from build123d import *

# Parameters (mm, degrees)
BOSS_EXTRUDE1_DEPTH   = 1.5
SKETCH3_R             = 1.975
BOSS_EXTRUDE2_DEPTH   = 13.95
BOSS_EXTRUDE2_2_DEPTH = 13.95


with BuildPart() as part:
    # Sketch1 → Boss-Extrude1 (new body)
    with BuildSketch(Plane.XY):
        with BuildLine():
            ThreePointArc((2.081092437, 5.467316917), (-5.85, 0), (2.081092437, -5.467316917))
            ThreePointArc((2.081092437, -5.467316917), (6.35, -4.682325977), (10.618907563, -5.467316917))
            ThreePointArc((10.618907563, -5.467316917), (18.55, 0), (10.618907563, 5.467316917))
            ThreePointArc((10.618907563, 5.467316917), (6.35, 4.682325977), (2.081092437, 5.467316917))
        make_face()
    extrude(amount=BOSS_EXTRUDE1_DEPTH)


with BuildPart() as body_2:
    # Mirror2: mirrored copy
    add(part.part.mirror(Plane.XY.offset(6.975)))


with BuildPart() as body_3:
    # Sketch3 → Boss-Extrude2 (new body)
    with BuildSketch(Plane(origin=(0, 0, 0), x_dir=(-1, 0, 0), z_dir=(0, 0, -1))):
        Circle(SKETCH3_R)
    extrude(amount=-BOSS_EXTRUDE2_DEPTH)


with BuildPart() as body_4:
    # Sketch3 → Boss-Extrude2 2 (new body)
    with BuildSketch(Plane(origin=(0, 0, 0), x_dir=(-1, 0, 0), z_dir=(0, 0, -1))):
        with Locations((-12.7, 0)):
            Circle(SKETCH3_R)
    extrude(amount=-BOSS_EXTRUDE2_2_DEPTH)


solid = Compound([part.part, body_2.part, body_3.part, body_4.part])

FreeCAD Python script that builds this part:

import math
import FreeCAD as App
import Part
import Sketcher

V = App.Vector

doc = App.newDocument("Part")
params = doc.addObject("Spreadsheet::Sheet", "Params")
for row, (alias, value) in enumerate([
    ("sketch1_radius", "12 mm"),
    ("sketch1_radius2", "5.85 mm"),
    ("pad1_length", "1.5 mm"),
    ("sketch2_diameter", "3.95 mm"),
    ("pad2_length", "13.95 mm"),
    ("sketch3_diameter", "3.95 mm"),
    ("pad3_length", "13.95 mm"),
], start=1):
    params.set(f"A{row}", alias)
    params.set(f"B{row}", "=" + value)
    params.setAlias(f"B{row}", alias)

body = doc.addObject("PartDesign::Body", "Body")

sketch1 = body.newObject("Sketcher::SketchObject", "Sketch")
sketch1.AttachmentSupport = (doc.getObject("XY_Plane"), [""])
sketch1.MapMode = "FlatFace"
sketch1.addGeometry(Part.ArcOfCircle(Part.Circle(V(0, 0, 0), V(0, 0, 1), 5.85), math.radians(69.161055), math.radians(290.838945)), False)
sketch1.addGeometry(Part.ArcOfCircle(Part.Circle(V(6.35, -16.682326, 0), V(0, 0, 1), 12), math.radians(69.161055), math.radians(110.838945)), False)
sketch1.addGeometry(Part.ArcOfCircle(Part.Circle(V(12.7, 0, 0), V(0, 0, 1), 5.85), math.radians(-110.838945), math.radians(110.838945)), False)
sketch1.addGeometry(Part.ArcOfCircle(Part.Circle(V(6.35, 16.682326, 0), V(0, 0, 1), 12), math.radians(-110.838945), math.radians(-69.161055)), False)
sketch1.addConstraint(Sketcher.Constraint("Tangent", 0, 2, 1, 2))
sketch1.addConstraint(Sketcher.Constraint("Tangent", 1, 1, 2, 1))
sketch1.addConstraint(Sketcher.Constraint("Tangent", 2, 2, 3, 2))
sketch1.addConstraint(Sketcher.Constraint("Tangent", 3, 1, 0, 1))
sketch1.addConstraint(Sketcher.Constraint("Coincident", 0, 3, -1, 1))
sketch1.addConstraint(Sketcher.Constraint("Equal", 0, 2))
sketch1.addConstraint(Sketcher.Constraint("Equal", 1, 3))
sketch1.addConstraint(Sketcher.Constraint("PointOnObject", 2, 3, -1))
sketch1.addConstraint(Sketcher.Constraint("Radius", 1, 12.0))
sketch1.addConstraint(Sketcher.Constraint("Radius", 0, 5.85))
sketch1.addConstraint(Sketcher.Constraint("DistanceX", -1, 1, 2, 3, 12.7))
sketch1.setExpression("Constraints[8]", "Params.sketch1_radius")
sketch1.setExpression("Constraints[9]", "Params.sketch1_radius2")
pad1 = body.newObject("PartDesign::Pad", "Pad")
pad1.Profile = sketch1
pad1.setExpression("Length", "Params.pad1_length")
body2 = doc.addObject("PartDesign::Body", "Body001")
doc.recompute()

mirroring = doc.addObject("Part::Mirroring", "Mirroring")
mirroring.Source = body
mirroring.Base = V(0, 0, 6.975)
mirroring.Normal = V(0, 0, 1)
body2.BaseFeature = mirroring
doc.recompute()
body3 = doc.addObject("PartDesign::Body", "Body002")

sketch2 = body3.newObject("Sketcher::SketchObject", "Sketch001")
sketch2.AttachmentSupport = (doc.getObject("XY_Plane002"), [""])
sketch2.MapMode = "FlatFace"
sketch2.addGeometry(Part.Circle(V(0, 0, 0), V(0, 0, 1), 1.975), False)
sketch2.addConstraint(Sketcher.Constraint("Coincident", 0, 3, -1, 1))
sketch2.addConstraint(Sketcher.Constraint("Diameter", 0, 3.95))
sketch2.setExpression("Constraints[1]", "Params.sketch2_diameter")
pad2 = body3.newObject("PartDesign::Pad", "Pad001")
pad2.Profile = sketch2
pad2.setExpression("Length", "Params.pad2_length")
body4 = doc.addObject("PartDesign::Body", "Body003")

sketch3 = body4.newObject("Sketcher::SketchObject", "Sketch002")
sketch3.AttachmentSupport = (doc.getObject("XY_Plane003"), [""])
sketch3.MapMode = "FlatFace"
sketch3.addGeometry(Part.Circle(V(12.7, 0, 0), V(0, 0, 1), 1.975), False)
sketch3.addConstraint(Sketcher.Constraint("PointOnObject", 0, 3, -1))
sketch3.addConstraint(Sketcher.Constraint("Diameter", 0, 3.95))
sketch3.addConstraint(Sketcher.Constraint("DistanceX", -1, 1, 0, 3, 12.7))
sketch3.setExpression("Constraints[1]", "Params.sketch3_diameter")
pad3 = body4.newObject("PartDesign::Pad", "Pad002")
pad3.Profile = sketch3
pad3.setExpression("Length", "Params.pad3_length")
mirroring.Visibility = False

doc.recompute()
